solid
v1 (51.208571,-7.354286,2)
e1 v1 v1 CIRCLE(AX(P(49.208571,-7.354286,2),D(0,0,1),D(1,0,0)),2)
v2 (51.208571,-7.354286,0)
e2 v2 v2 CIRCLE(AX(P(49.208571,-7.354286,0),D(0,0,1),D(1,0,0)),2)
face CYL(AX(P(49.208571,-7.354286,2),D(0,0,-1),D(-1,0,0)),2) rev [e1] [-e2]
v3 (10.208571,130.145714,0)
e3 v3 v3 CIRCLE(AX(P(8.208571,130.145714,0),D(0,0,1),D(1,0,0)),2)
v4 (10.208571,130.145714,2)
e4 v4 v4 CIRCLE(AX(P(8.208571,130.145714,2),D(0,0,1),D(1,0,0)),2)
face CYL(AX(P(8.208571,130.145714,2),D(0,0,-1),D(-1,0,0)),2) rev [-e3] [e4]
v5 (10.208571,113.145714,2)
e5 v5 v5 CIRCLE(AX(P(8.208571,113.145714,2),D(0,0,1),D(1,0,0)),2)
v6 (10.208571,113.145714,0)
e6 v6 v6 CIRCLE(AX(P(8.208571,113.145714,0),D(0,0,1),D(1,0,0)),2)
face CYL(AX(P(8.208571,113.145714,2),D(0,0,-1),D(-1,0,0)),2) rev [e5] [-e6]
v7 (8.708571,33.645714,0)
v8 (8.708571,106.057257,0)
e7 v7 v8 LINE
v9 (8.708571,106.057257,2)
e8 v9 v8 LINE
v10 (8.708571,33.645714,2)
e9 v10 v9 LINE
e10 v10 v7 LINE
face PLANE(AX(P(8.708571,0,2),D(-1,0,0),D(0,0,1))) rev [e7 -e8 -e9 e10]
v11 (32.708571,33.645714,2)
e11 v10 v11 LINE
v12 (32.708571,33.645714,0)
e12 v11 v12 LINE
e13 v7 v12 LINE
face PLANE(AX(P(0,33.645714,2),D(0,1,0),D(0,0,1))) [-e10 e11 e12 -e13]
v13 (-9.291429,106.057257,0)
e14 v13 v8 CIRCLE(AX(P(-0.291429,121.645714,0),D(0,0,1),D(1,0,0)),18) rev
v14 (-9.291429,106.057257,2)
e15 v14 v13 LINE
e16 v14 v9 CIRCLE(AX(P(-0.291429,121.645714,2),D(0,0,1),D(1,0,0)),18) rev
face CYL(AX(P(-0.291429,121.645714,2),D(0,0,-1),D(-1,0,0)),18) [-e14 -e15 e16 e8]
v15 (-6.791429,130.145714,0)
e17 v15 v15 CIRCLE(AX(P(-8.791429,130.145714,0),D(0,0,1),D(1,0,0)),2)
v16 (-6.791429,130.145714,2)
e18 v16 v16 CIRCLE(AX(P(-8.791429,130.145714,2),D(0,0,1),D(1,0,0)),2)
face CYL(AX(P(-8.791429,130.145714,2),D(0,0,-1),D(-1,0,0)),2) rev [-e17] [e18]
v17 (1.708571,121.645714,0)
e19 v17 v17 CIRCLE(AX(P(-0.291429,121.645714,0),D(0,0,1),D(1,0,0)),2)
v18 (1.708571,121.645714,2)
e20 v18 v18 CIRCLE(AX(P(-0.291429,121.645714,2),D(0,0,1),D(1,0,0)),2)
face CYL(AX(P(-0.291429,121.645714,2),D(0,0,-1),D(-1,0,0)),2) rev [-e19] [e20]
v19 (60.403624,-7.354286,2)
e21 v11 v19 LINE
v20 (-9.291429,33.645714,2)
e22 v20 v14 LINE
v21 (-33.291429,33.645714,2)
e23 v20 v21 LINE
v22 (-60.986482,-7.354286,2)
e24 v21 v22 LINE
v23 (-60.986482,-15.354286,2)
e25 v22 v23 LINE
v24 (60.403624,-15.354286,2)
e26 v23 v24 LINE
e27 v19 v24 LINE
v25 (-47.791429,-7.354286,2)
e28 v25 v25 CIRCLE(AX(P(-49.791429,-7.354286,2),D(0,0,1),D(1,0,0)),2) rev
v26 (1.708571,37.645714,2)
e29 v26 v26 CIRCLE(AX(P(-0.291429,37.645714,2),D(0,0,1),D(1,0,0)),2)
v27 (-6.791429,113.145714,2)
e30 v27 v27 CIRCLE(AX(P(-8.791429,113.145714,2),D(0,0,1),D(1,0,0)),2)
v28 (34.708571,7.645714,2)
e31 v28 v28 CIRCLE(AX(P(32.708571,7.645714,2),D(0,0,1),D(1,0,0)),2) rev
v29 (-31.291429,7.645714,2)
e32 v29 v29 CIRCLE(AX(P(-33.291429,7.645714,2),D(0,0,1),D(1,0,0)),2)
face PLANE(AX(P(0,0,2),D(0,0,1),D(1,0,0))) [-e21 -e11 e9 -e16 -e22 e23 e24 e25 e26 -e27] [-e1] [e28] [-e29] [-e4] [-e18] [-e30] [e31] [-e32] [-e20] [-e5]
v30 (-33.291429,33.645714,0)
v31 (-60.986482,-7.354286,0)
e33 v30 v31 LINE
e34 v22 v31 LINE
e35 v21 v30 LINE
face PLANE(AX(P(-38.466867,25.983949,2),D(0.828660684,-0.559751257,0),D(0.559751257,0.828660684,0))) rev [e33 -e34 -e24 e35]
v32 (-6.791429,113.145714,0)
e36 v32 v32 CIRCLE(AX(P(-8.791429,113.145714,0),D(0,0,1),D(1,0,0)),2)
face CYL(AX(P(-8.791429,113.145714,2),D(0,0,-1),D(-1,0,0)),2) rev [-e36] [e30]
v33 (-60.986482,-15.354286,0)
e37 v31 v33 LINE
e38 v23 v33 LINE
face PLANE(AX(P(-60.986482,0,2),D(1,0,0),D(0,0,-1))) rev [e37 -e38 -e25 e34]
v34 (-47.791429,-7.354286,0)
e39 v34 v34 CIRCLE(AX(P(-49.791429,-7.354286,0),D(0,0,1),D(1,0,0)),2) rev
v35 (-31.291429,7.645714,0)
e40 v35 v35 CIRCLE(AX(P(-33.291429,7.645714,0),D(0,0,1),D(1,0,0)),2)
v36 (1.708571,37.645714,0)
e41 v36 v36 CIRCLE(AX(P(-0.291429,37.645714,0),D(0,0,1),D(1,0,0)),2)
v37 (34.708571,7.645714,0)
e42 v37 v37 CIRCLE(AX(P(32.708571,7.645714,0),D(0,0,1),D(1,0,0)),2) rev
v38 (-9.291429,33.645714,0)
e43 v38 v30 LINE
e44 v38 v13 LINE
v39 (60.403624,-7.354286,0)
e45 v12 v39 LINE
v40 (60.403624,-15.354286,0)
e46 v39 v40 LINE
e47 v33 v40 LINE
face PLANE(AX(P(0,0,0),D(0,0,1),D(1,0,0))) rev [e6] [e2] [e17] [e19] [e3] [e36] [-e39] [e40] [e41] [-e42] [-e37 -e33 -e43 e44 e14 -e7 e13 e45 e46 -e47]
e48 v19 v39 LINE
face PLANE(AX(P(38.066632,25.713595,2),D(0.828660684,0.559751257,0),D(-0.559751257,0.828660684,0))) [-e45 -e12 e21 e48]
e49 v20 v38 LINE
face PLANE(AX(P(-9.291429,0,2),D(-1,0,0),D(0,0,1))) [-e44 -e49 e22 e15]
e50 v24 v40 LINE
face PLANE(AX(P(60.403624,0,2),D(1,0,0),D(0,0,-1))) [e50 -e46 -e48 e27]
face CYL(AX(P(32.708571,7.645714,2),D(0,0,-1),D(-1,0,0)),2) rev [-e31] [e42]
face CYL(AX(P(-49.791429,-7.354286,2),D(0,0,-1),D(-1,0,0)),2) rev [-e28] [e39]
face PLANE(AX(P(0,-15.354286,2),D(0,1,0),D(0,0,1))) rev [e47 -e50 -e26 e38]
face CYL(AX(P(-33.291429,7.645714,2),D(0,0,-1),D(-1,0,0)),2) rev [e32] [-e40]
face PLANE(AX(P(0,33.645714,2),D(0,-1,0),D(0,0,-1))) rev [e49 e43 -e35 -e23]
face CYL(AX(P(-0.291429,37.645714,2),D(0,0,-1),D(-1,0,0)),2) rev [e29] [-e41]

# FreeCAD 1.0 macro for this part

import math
import FreeCAD as App
import Part
import Sketcher
Q = App.Units.Quantity

doc = App.newDocument("Part")
body = doc.addObject("PartDesign::Body", "Body")

# Sketch on XY plane
sketch1 = body.newObject("Sketcher::SketchObject", "Sketch")
sketch1.AttachmentSupport = (doc.getObject("XY_Plane"), [""])
sketch1.MapMode = "FlatFace"
sketch1.addGeometry(Part.LineSegment(App.Vector(-9.291429, 106.057257, 0), App.Vector(-9.291429, 33.645714, 0)), False)
sketch1.addGeometry(Part.LineSegment(App.Vector(-9.291429, 33.645714, 0), App.Vector(-33.291429, 33.645714, 0)), False)
sketch1.addGeometry(Part.LineSegment(App.Vector(-33.291429, 33.645714, 0), App.Vector(-60.986482, -7.354286, 0)), False)
sketch1.addGeometry(Part.LineSegment(App.Vector(-60.986482, -7.354286, 0), App.Vector(-60.986482, -15.354286, 0)), False)
sketch1.addGeometry(Part.LineSegment(App.Vector(-60.986482, -15.354286, 0), App.Vector(60.403624, -15.354286, 0)), False)
sketch1.addGeometry(Part.LineSegment(App.Vector(60.403624, -15.354286, 0), App.Vector(60.403624, -7.354286, 0)), False)
sketch1.addGeometry(Part.LineSegment(App.Vector(60.403624, -7.354286, 0), App.Vector(32.708571, 33.645714, 0)), False)
sketch1.addGeometry(Part.LineSegment(App.Vector(32.708571, 33.645714, 0), App.Vector(8.708571, 33.645714, 0)), False)
sketch1.addGeometry(Part.LineSegment(App.Vector(8.708571, 33.645714, 0), App.Vector(8.708571, 106.057257, 0)), False)
sketch1.addGeometry(Part.ArcOfCircle(Part.Circle(App.Vector(-0.291429, 121.645714, 0), App.Vector(0, 0, 1), 18), math.radians(-60), math.radians(0)), False)
sketch1.addGeometry(Part.ArcOfCircle(Part.Circle(App.Vector(-0.291429, 121.645714, 0), App.Vector(0, 0, 1), 18), math.radians(0), math.radians(240)), False)
sketch1.addGeometry(Part.Circle(App.Vector(-49.791429, -7.354286, 0), App.Vector(0, 0, 1), 2), False)
sketch1.addGeometry(Part.Circle(App.Vector(-33.291429, 7.645714, 0), App.Vector(0, 0, 1), 2), False)
sketch1.addGeometry(Part.Circle(App.Vector(49.208571, -7.354286, 0), App.Vector(0, 0, 1), 2), False)
sketch1.addGeometry(Part.Circle(App.Vector(32.708571, 7.645714, 0), App.Vector(0, 0, 1), 2), False)
sketch1.addGeometry(Part.Circle(App.Vector(-0.291429, 37.645714, 0), App.Vector(0, 0, 1), 2), False)
sketch1.addGeometry(Part.Circle(App.Vector(8.208571, 130.145714, 0), App.Vector(0, 0, 1), 2), False)
sketch1.addGeometry(Part.Circle(App.Vector(-8.791429, 113.145714, 0), App.Vector(0, 0, 1), 2), False)
sketch1.addGeometry(Part.Circle(App.Vector(8.208571, 113.145714, 0), App.Vector(0, 0, 1), 2), False)
sketch1.addGeometry(Part.Circle(App.Vector(-8.791429, 130.145714, 0), App.Vector(0, 0, 1), 2), False)
sketch1.addGeometry(Part.Circle(App.Vector(-0.291429, 121.645714, 0), App.Vector(0, 0, 1), 2), False)
sketch1.addConstraint(Sketcher.Constraint("Coincident", 0, 2, 1, 1))
sketch1.addConstraint(Sketcher.Constraint("Coincident", 1, 2, 2, 1))
sketch1.addConstraint(Sketcher.Constraint("Coincident", 2, 2, 3, 1))
sketch1.addConstraint(Sketcher.Constraint("Coincident", 3, 2, 4, 1))
sketch1.addConstraint(Sketcher.Constraint("Coincident", 4, 2, 5, 1))
sketch1.addConstraint(Sketcher.Constraint("Coincident", 5, 2, 6, 1))
sketch1.addConstraint(Sketcher.Constraint("Coincident", 6, 2, 7, 1))
sketch1.addConstraint(Sketcher.Constraint("Coincident", 7, 2, 8, 1))
sketch1.addConstraint(Sketcher.Constraint("Coincident", 8, 2, 9, 1))
sketch1.addConstraint(Sketcher.Constraint("Tangent", 9, 2, 10, 1))
sketch1.addConstraint(Sketcher.Constraint("Coincident", 10, 2, 0, 1))
sketch1.addConstraint(Sketcher.Constraint("Vertical", 0))
sketch1.addConstraint(Sketcher.Constraint("Horizontal", 1))
sketch1.addConstraint(Sketcher.Constraint("Vertical", 3))
sketch1.addConstraint(Sketcher.Constraint("Horizontal", 4))
sketch1.addConstraint(Sketcher.Constraint("Vertical", 5))
sketch1.addConstraint(Sketcher.Constraint("Horizontal", 7))
sketch1.addConstraint(Sketcher.Constraint("Vertical", 8))
sketch1.addConstraint(Sketcher.Constraint("Coincident", 20, 3, 9, 3))
sketch1.addConstraint(Sketcher.Constraint("Equal", 9, 10))
sketch1.addConstraint(Sketcher.Constraint("Equal", 11, 12))
sketch1.addConstraint(Sketcher.Constraint("Equal", 12, 13))
sketch1.addConstraint(Sketcher.Constraint("Equal", 13, 14))
sketch1.addConstraint(Sketcher.Constraint("Equal", 14, 15))
sketch1.addConstraint(Sketcher.Constraint("Equal", 15, 16))
sketch1.addConstraint(Sketcher.Constraint("Equal", 16, 17))
sketch1.addConstraint(Sketcher.Constraint("Equal", 17, 18))
sketch1.addConstraint(Sketcher.Constraint("Equal", 18, 19))
sketch1.addConstraint(Sketcher.Constraint("Equal", 19, 20))
sketch1.addConstraint(Sketcher.Constraint("Horizontal", 11, 3, 13, 3))
sketch1.addConstraint(Sketcher.Constraint("Horizontal", 12, 3, 14, 3))
sketch1.addConstraint(Sketcher.Constraint("Horizontal", 17, 3, 18, 3))
sketch1.addConstraint(Sketcher.Constraint("Horizontal", 16, 3, 19, 3))
sketch1.addConstraint(Sketcher.Constraint("Horizontal", 13, 3, 2, 2))
sketch1.addConstraint(Sketcher.Constraint("Horizontal", 2, 2, 5, 2))
sketch1.addConstraint(Sketcher.Constraint("Horizontal", 1, 2, 6, 2))
sketch1.addConstraint(Sketcher.Constraint("Horizontal", 20, 3, 9, 2))
sketch1.addConstraint(Sketcher.Constraint("Horizontal", 8, 2, 10, 2))
sketch1.addConstraint(Sketcher.Constraint("Vertical", 10, 3, 15, 3))
sketch1.addConstraint(Sketcher.Constraint("Vertical", 16, 3, 18, 3))
sketch1.addConstraint(Sketcher.Constraint("Vertical", 17, 3, 19, 3))
sketch1.addConstraint(Sketcher.Constraint("Vertical", 12, 3, 1, 2))
sketch1.addConstraint(Sketcher.Constraint("Vertical", 14, 3, 6, 2))
sketch1.addConstraint(Sketcher.Constraint("Equal", 1, 7))
sketch1.addConstraint(Sketcher.Constraint("Equal", 2, 6))
sketch1.addConstraint(Sketcher.Constraint("Diameter", 11, Q("4 mm")))
sketch1.addConstraint(Sketcher.Constraint("Radius", 9, Q("18 mm")))
sketch1.addConstraint(Sketcher.Constraint("DistanceX", 1, 2, 1, 1, Q("24 mm")))
sketch1.addConstraint(Sketcher.Constraint("DistanceY", 3, 2, 3, 1, Q("8 mm")))
sketch1.addConstraint(Sketcher.Constraint("DistanceY", 11, 3, 9, 3, Q("129 mm")))
sketch1.addConstraint(Sketcher.Constraint("DistanceY", 11, 3, 12, 3, Q("15 mm")))
sketch1.addConstraint(Sketcher.Constraint("DistanceX", 12, 3, 9, 3, Q("33 mm")))
sketch1.addConstraint(Sketcher.Constraint("DistanceX", 11, 3, 13, 3, Q("99 mm")))
sketch1.addConstraint(Sketcher.Constraint("DistanceY", 12, 3, 15, 3, Q("30 mm")))
sketch1.addConstraint(Sketcher.Constraint("DistanceX", 17, 3, 16, 3, Q("17 mm")))
sketch1.addConstraint(Sketcher.Constraint("DistanceY", 17, 3, 16, 3, Q("17 mm")))
sketch1.addConstraint(Sketcher.Constraint("DistanceY", 0, 2, 15, 3, Q("4 mm")))
sketch1.addConstraint(Sketcher.Constraint("DistanceX", 11, 3, 9, 3, Q("49.5 mm")))
sketch1.addConstraint(Sketcher.Constraint("DistanceX", 9, 3, 16, 3, Q("8.5 mm")))
sketch1.addConstraint(Sketcher.Constraint("DistanceY", 9, 3, 16, 3, Q("8.5 mm")))
sketch1.addConstraint(Sketcher.Constraint("Distance", 2, Q("49.477429 mm")))
sketch1.addConstraint(Sketcher.Constraint("DistanceX", 9, 3, -1, 1, Q("0.291429 mm")))
sketch1.addConstraint(Sketcher.Constraint("DistanceY", -1, 1, 9, 3, Q("121.645714 mm")))
pad1 = body.newObject("PartDesign::Pad", "Pad")
pad1.Profile = sketch1
pad1.Length = 2

doc.recompute()
